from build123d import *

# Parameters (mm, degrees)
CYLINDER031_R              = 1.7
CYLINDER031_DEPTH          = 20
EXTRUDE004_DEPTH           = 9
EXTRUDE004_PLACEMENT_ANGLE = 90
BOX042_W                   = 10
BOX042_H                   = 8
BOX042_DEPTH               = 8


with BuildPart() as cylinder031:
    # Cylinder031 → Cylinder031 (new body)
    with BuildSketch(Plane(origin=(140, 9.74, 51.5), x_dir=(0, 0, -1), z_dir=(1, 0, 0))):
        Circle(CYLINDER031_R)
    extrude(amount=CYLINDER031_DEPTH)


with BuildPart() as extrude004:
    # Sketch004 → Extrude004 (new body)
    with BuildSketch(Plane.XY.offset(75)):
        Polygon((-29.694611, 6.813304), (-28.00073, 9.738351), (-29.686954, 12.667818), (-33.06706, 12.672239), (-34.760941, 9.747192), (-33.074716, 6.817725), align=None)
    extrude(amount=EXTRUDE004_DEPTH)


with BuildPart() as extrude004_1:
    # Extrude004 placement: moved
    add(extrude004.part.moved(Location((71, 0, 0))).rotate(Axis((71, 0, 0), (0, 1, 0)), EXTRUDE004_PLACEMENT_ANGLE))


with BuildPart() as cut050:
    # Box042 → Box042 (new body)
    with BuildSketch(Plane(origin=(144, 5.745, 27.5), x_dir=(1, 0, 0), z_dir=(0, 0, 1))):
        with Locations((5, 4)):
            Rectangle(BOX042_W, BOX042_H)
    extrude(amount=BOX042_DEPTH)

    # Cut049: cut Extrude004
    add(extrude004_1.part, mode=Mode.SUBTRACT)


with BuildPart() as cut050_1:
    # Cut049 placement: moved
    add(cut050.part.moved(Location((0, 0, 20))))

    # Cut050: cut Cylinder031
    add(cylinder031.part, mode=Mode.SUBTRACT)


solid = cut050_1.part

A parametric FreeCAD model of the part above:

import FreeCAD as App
import Part
import Sketcher

doc = App.newDocument("Part")
body = doc.addObject("PartDesign::Body", "Body")

# Sketch on YZ plane
sketch1 = body.newObject("Sketcher::SketchObject", "Sketch")
sketch1.AttachmentSupport = (doc.getObject("YZ_Plane"), [""])
sketch1.MapMode = "FlatFace"
sketch1.AttachmentOffset = App.Placement(App.Vector(0, 0, 140), App.Rotation())
sketch1.addGeometry(Part.Circle(App.Vector(9.74, 51.5, 0), App.Vector(0, 0, 1), 1.7), False)
sketch1.addConstraint([
    Sketcher.Constraint("Diameter", 0, 3.4),
    Sketcher.Constraint("DistanceY", -1, 1, 0, 3, 51.5),
    Sketcher.Constraint("DistanceX", -1, 1, 0, 3, 9.74),
])
pad1 = body.newObject("PartDesign::Pad", "Pad")
pad1.Profile = sketch1
pad1.Length = 20
body2 = doc.addObject("PartDesign::Body", "Body001")

# Sketch on XY plane
sketch2 = body2.newObject("Sketcher::SketchObject", "Sketch001")
sketch2.AttachmentSupport = (doc.getObject("XY_Plane001"), [""])
sketch2.MapMode = "FlatFace"
sketch2.AttachmentOffset = App.Placement(App.Vector(0, 0, 75), App.Rotation())
sketch2.addGeometry([
    Part.LineSegment(App.Vector(-29.694611, 6.813304, 0), App.Vector(-28.00073, 9.738351, 0)),  # 0
    Part.LineSegment(App.Vector(-28.00073, 9.738351, 0), App.Vector(-29.686954, 12.667818, 0)),  # 1
    Part.LineSegment(App.Vector(-29.686954, 12.667818, 0), App.Vector(-33.06706, 12.672239, 0)),  # 2
    Part.LineSegment(App.Vector(-33.06706, 12.672239, 0), App.Vector(-34.760941, 9.747192, 0)),  # 3
    Part.LineSegment(App.Vector(-34.760941, 9.747192, 0), App.Vector(-33.074716, 6.817725, 0)),  # 4
    Part.LineSegment(App.Vector(-33.074716, 6.817725, 0), App.Vector(-29.694611, 6.813304, 0)),  # 5
], False)
sketch2.addConstraint([
    Sketcher.Constraint("Coincident", 0, 2, 1, 1),
    Sketcher.Constraint("Coincident", 1, 2, 2, 1),
    Sketcher.Constraint("Coincident", 2, 2, 3, 1),
    Sketcher.Constraint("Coincident", 3, 2, 4, 1),
    Sketcher.Constraint("Coincident", 4, 2, 5, 1),
    Sketcher.Constraint("Coincident", 5, 2, 0, 1),
    Sketcher.Constraint("Parallel", 0, 3),
    Sketcher.Constraint("Parallel", 1, 4),
    Sketcher.Constraint("Parallel", 2, 5),
    Sketcher.Constraint("Equal", 0, 1),
    Sketcher.Constraint("Equal", 1, 2),
    Sketcher.Constraint("Equal", 2, 3),
    Sketcher.Constraint("Distance", 0, 3.380108),
    Sketcher.Constraint("DistanceX", 0, 2, -1, 1, 28.00073),
    Sketcher.Constraint("DistanceY", -1, 1, 0, 2, 9.738351),
    Sketcher.Constraint("DistanceX", 2, 2, -1, 1, 33.06706),
    Sketcher.Constraint("DistanceY", -1, 1, 2, 2, 12.672239),
    Sketcher.Constraint("DistanceX", 3, 2, -1, 1, 34.760941),
])
pad2 = body2.newObject("PartDesign::Pad", "Pad001")
pad2.Profile = sketch2
pad2.Length = 9
body3 = doc.addObject("PartDesign::Body", "Body002")
doc.recompute()

body2.Placement = App.Placement(App.Vector(71, 0, 0), App.Rotation(App.Vector(0, 1, 0), 90))
boolean = body3.newObject("PartDesign::Boolean", "Boolean")
boolean.Type = "Fuse"
boolean.addObjects([body2])
body4 = doc.addObject("PartDesign::Body", "Body003")

# Sketch on XY plane
sketch3 = body4.newObject("Sketcher::SketchObject", "Sketch002")
sketch3.AttachmentSupport = (doc.getObject("XY_Plane003"), [""])
sketch3.MapMode = "FlatFace"
sketch3.AttachmentOffset = App.Placement(App.Vector(0, 0, 27.5), App.Rotation())
sketch3.addGeometry([
    Part.LineSegment(App.Vector(144, 13.745, 0), App.Vector(144, 5.745, 0)),
    Part.LineSegment(App.Vector(144, 5.745, 0), App.Vector(154, 5.745, 0)),
    Part.LineSegment(App.Vector(154, 5.745, 0), App.Vector(154, 13.745, 0)),
    Part.LineSegment(App.Vector(154, 13.745, 0), App.Vector(144, 13.745, 0)),
], False)
sketch3.addConstraint([
    Sketcher.Constraint("Coincident", 0, 2, 1, 1),
    Sketcher.Constraint("Coincident", 1, 2, 2, 1),
    Sketcher.Constraint("Coincident", 2, 2, 3, 1),
    Sketcher.Constraint("Coincident", 3, 2, 0, 1),
    Sketcher.Constraint("Vertical", 0),
    Sketcher.Constraint("Horizontal", 1),
    Sketcher.Constraint("Vertical", 2),
    Sketcher.Constraint("Horizontal", 3),
    Sketcher.Constraint("DistanceX", 1, 1, 1, 2, 10.0),
    Sketcher.Constraint("DistanceY", 0, 2, 0, 1, 8.0),
    Sketcher.Constraint("DistanceX", -1, 1, 0, 2, 144.0),
    Sketcher.Constraint("DistanceY", -1, 1, 0, 2, 5.745),
])
pad3 = body4.newObject("PartDesign::Pad", "Pad002")
pad3.Profile = sketch3
pad3.Length = 8
doc.recompute()

boolean2 = body4.newObject("PartDesign::Boolean", "Boolean001")
boolean2.Type = "Cut"
boolean2.addObjects([body3])
body5 = doc.addObject("PartDesign::Body", "Body004")
doc.recompute()

body4.Placement = App.Placement(App.Vector(0, 0, 20), App.Rotation(App.Vector(0, 0, 1), 0))
boolean3 = body5.newObject("PartDesign::Boolean", "Boolean002")
boolean3.Type = "Fuse"
boolean3.addObjects([body4])
doc.recompute()

boolean4 = body5.newObject("PartDesign::Boolean", "Boolean003")
boolean4.Type = "Cut"
boolean4.addObjects([body])

doc.recompute()
